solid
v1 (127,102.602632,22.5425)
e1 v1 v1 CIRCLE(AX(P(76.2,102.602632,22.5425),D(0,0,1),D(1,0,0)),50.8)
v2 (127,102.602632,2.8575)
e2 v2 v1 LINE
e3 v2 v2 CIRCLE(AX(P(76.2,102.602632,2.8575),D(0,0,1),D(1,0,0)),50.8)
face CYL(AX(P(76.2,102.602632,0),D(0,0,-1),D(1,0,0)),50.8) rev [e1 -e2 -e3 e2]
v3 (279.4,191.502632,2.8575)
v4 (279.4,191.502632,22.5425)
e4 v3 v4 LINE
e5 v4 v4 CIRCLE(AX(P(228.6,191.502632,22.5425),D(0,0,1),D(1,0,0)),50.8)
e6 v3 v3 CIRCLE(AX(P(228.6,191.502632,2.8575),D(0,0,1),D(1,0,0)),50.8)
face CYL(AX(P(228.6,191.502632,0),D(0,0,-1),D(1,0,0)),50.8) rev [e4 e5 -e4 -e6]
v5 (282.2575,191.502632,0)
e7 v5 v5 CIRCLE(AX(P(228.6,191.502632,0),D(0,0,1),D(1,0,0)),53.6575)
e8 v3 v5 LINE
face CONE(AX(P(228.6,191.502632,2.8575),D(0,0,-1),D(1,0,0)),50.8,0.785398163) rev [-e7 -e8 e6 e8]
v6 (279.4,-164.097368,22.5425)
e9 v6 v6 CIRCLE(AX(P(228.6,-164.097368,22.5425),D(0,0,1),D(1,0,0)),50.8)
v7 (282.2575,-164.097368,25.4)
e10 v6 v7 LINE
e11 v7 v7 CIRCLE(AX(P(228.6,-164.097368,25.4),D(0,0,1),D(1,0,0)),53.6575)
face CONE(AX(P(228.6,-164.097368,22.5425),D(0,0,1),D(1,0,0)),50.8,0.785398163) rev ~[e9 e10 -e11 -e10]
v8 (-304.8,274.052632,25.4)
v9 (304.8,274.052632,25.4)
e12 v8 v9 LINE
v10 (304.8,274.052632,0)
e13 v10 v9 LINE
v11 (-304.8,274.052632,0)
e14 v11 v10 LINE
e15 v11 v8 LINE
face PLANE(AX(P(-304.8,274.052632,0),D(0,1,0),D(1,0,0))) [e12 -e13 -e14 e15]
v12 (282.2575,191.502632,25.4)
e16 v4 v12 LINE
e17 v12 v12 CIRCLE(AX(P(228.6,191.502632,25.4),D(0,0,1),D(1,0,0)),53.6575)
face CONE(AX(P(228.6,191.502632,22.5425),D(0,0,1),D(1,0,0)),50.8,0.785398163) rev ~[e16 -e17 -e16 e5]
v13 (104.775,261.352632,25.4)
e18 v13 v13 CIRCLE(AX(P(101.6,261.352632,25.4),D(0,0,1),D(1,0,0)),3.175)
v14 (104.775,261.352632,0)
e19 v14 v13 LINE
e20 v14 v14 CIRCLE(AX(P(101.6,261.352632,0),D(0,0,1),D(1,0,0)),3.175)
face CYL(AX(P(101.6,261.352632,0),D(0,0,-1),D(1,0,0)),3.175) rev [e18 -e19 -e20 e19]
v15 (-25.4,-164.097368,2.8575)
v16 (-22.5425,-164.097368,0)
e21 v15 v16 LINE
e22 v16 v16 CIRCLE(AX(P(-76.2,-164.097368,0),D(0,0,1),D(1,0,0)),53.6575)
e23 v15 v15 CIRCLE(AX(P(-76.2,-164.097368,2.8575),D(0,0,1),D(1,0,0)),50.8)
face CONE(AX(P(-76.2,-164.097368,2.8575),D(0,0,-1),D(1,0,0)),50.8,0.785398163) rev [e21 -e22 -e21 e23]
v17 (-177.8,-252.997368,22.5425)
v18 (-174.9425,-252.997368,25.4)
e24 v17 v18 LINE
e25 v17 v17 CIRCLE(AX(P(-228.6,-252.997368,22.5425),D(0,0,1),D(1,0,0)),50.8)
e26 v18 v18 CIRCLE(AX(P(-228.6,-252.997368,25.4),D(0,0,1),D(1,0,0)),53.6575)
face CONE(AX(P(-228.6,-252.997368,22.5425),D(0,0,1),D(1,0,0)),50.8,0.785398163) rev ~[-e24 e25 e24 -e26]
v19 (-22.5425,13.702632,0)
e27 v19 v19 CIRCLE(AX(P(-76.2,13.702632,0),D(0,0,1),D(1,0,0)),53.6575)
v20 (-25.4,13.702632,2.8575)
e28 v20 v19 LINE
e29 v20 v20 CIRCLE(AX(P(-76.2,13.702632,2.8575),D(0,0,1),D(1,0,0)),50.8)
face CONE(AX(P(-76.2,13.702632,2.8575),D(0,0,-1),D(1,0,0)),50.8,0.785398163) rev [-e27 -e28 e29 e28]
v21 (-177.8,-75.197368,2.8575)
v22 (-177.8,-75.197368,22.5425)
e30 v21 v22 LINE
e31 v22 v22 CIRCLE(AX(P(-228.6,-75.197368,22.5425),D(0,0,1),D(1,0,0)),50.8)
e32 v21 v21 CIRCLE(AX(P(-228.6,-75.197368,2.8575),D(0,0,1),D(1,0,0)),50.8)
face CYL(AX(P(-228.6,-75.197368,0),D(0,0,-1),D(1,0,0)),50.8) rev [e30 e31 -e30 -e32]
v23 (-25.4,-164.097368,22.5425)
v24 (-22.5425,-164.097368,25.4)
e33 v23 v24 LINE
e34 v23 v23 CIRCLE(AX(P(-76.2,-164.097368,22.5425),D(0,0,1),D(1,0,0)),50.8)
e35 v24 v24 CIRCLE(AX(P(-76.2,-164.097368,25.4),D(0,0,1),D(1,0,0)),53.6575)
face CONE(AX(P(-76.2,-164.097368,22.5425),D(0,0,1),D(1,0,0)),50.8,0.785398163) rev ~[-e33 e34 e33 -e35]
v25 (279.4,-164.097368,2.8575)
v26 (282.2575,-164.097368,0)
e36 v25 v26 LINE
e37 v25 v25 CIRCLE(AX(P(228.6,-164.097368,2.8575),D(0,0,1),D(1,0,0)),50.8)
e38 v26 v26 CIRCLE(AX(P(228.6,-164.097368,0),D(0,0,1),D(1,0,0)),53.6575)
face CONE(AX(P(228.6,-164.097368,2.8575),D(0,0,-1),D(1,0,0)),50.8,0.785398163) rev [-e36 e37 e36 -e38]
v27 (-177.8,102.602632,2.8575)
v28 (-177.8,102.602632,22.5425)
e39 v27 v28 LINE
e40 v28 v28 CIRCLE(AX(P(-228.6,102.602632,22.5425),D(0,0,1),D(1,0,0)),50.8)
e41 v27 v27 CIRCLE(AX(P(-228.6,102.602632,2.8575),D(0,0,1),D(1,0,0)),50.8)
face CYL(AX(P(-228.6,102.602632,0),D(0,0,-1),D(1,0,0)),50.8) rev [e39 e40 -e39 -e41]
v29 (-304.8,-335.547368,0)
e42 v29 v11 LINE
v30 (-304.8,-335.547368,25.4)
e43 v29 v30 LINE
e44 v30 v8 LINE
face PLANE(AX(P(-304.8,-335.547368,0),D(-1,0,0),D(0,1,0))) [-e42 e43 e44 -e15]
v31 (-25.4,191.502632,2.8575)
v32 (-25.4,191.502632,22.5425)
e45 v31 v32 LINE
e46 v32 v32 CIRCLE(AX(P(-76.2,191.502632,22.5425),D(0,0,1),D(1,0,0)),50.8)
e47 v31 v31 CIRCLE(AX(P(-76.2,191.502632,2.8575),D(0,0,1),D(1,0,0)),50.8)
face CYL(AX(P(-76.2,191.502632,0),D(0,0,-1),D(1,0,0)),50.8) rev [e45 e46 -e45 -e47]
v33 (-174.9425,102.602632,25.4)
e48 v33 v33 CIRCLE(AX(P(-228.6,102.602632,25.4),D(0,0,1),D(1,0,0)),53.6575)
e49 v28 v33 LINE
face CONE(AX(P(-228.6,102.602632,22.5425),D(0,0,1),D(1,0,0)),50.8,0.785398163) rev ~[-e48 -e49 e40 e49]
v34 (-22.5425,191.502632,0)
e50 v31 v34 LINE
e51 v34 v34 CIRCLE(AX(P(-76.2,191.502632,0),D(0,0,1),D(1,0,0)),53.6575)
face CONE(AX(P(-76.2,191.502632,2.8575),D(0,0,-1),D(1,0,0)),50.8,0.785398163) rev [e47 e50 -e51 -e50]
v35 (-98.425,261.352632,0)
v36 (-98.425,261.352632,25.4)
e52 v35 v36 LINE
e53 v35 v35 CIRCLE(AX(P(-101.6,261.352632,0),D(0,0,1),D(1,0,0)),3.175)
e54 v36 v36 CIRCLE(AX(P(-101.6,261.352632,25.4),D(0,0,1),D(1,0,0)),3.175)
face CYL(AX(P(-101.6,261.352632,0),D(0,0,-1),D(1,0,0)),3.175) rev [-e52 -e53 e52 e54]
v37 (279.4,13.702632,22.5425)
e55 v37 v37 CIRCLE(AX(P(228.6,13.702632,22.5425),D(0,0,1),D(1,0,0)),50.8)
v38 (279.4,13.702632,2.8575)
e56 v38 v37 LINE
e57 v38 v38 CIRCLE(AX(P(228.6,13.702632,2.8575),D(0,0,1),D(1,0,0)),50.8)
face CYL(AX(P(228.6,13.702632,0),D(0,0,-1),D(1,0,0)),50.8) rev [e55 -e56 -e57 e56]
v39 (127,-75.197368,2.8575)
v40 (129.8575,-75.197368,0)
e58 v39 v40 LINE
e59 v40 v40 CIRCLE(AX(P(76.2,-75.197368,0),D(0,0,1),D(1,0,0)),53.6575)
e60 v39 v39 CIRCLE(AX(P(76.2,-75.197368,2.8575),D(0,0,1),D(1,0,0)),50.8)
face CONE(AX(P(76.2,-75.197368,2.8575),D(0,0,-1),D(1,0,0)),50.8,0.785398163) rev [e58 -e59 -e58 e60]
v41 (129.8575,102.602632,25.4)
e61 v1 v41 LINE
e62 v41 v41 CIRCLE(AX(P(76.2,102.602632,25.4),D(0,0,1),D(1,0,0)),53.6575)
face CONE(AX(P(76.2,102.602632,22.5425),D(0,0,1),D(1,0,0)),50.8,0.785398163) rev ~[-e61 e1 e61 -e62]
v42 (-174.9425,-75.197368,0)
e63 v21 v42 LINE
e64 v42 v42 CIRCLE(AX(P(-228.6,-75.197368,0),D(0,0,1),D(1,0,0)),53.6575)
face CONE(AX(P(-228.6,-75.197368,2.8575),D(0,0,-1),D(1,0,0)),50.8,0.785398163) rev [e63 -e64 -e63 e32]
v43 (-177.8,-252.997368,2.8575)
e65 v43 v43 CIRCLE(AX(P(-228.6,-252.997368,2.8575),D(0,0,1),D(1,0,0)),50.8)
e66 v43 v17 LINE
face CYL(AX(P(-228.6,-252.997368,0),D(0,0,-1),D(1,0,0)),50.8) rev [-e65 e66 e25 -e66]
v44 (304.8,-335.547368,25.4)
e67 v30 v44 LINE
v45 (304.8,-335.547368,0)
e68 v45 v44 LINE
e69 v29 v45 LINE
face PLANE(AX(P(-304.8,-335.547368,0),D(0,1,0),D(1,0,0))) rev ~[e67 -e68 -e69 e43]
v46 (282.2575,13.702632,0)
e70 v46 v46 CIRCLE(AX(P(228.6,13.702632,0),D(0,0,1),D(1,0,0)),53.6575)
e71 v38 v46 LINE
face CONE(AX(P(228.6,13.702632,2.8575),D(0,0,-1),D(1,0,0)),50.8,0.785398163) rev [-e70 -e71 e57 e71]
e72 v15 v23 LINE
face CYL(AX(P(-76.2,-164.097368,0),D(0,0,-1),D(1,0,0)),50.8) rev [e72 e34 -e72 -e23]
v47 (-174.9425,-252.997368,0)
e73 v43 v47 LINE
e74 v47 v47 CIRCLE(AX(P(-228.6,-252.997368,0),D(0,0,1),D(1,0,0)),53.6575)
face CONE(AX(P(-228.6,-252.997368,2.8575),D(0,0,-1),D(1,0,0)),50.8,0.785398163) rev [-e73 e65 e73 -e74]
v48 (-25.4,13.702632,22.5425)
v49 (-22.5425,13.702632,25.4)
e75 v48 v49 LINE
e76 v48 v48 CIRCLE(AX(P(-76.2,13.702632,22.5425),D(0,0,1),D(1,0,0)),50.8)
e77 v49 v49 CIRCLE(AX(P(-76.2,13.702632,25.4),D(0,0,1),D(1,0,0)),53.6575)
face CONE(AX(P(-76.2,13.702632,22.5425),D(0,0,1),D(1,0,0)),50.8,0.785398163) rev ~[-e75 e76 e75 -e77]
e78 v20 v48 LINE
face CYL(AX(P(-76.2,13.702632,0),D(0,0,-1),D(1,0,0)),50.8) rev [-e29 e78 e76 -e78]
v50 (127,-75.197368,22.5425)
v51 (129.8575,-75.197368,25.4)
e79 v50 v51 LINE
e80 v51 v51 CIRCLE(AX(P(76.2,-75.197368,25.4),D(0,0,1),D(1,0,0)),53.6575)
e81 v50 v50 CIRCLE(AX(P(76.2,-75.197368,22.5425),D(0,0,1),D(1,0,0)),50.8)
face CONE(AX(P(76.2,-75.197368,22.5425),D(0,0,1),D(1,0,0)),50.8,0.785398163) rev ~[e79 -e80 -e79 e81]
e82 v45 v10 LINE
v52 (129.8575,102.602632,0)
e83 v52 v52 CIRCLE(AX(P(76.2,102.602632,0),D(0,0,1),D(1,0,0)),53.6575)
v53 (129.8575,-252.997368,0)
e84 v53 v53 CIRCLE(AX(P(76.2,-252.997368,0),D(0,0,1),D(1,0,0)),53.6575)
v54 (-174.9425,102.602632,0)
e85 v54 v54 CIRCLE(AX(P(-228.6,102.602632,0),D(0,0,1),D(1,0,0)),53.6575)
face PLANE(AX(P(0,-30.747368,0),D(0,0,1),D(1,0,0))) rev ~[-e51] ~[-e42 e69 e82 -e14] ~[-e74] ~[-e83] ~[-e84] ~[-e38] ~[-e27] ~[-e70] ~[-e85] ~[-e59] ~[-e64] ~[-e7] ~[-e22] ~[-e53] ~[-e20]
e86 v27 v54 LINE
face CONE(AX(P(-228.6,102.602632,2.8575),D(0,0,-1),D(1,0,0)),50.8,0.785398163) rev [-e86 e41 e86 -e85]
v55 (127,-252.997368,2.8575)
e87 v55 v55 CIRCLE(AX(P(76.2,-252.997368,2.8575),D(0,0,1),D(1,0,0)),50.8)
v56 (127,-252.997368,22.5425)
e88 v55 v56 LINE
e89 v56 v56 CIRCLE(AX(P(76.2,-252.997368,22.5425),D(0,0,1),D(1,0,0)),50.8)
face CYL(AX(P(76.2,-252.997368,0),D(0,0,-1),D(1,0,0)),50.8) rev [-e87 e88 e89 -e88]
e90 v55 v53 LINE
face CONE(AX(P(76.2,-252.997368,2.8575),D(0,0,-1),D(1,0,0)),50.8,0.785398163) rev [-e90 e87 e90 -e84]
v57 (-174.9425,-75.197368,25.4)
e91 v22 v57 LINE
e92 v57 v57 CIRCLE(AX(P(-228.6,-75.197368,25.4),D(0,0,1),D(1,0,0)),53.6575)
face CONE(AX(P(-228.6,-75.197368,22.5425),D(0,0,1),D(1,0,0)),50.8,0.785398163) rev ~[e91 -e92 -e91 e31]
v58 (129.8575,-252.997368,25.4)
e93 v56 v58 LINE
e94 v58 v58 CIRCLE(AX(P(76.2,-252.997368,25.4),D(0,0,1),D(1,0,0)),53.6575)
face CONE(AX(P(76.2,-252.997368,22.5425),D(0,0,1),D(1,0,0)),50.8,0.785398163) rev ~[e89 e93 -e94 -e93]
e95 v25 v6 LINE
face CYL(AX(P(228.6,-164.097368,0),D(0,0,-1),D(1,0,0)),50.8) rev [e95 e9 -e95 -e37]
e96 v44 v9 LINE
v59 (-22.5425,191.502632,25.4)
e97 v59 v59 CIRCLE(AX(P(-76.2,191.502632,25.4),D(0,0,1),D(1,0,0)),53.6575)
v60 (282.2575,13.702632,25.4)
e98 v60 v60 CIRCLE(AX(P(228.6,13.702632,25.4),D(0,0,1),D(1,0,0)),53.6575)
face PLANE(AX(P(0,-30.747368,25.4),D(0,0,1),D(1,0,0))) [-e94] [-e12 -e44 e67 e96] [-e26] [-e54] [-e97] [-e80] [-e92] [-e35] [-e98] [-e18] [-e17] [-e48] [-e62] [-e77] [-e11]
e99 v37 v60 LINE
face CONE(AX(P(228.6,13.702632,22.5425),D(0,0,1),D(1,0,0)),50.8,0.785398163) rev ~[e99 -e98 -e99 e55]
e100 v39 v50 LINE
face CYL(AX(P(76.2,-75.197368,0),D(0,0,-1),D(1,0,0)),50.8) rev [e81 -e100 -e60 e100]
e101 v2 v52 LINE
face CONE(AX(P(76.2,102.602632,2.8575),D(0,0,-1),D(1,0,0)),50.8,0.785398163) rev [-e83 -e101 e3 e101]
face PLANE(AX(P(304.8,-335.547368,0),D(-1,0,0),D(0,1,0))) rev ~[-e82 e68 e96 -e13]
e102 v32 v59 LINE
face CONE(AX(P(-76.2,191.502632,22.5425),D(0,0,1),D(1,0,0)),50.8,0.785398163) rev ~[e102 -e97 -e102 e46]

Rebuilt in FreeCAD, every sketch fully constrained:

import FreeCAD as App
import Part
import Sketcher
from FreeCAD import Vector
Q = App.Units.Quantity


def edges_at(feature, points):
    """Names of the edges that pass closest to the given points."""
    edges = feature.Shape.Edges
    near = lambda p: min(range(len(edges)), key=lambda i: edges[i].distToShape(Part.Vertex(*p))[0])
    return sorted({f"Edge{near(p) + 1}" for p in points})


def add_polygon(sketch, points):
    """Adds a closed chain of lines whose ends are joined by coincident constraints."""
    first, n = sketch.GeometryCount, len(points)
    for a, b in zip(points, points[1:] + points[:1]):
        sketch.addGeometry(Part.LineSegment(App.Vector(*a, 0), App.Vector(*b, 0)), False)
    for i in range(n):
        sketch.addConstraint(Sketcher.Constraint("Coincident", first + i, 2, first + (i + 1) % n, 1))

doc = App.newDocument("Part")
body = doc.addObject("PartDesign::Body", "Body")

sketch1 = body.newObject("Sketcher::SketchObject", "Sketch")
sketch1.AttachmentSupport = (doc.getObject("XY_Plane"), [""])
sketch1.MapMode = "FlatFace"
add_polygon(sketch1, [(-304.8, 274.1), (-304.8, -335.5), (304.8, -335.5), (304.8, 274.1)])
sketch1.addGeometry(Part.Circle(Vector(-228.6, -253, 0), Vector(0, 0, 1), 50.8), False)
sketch1.addGeometry(Part.Circle(Vector(-76.2, -164.1, 0), Vector(0, 0, 1), 50.8), False)
sketch1.addGeometry(Part.Circle(Vector(-228.6, -75.2, 0), Vector(0, 0, 1), 50.8), False)
sketch1.addGeometry(Part.Circle(Vector(76.2, -253, 0), Vector(0, 0, 1), 50.8), False)
sketch1.addGeometry(Part.Circle(Vector(228.6, -164.1, 0), Vector(0, 0, 1), 50.8), False)
sketch1.addGeometry(Part.Circle(Vector(76.2, -75.2, 0), Vector(0, 0, 1), 50.8), False)
sketch1.addGeometry(Part.Circle(Vector(-228.6, 102.6, 0), Vector(0, 0, 1), 50.8), False)
sketch1.addGeometry(Part.Circle(Vector(-76.2, 13.7, 0), Vector(0, 0, 1), 50.8), False)
sketch1.addGeometry(Part.Circle(Vector(-76.2, 191.5, 0), Vector(0, 0, 1), 50.8), False)
sketch1.addGeometry(Part.Circle(Vector(-101.6, 261.4, 0), Vector(0, 0, 1), 3.2), False)
sketch1.addGeometry(Part.Circle(Vector(76.2, 102.6, 0), Vector(0, 0, 1), 50.8), False)
sketch1.addGeometry(Part.Circle(Vector(228.6, 13.7, 0), Vector(0, 0, 1), 50.8), False)
sketch1.addGeometry(Part.Circle(Vector(101.6, 261.4, 0), Vector(0, 0, 1), 3.2), False)
sketch1.addGeometry(Part.Circle(Vector(228.6, 191.5, 0), Vector(0, 0, 1), 50.8), False)
sketch1.addConstraint([
    Sketcher.Constraint("Vertical", 0),
    Sketcher.Constraint("Horizontal", 1),
    Sketcher.Constraint("Vertical", 2),
    Sketcher.Constraint("Horizontal", 3),
    Sketcher.Constraint("Equal", 4, 5),
    Sketcher.Constraint("Equal", 5, 6),
    Sketcher.Constraint("Equal", 6, 7),
    Sketcher.Constraint("Equal", 7, 8),
    Sketcher.Constraint("Equal", 8, 9),
    Sketcher.Constraint("Equal", 9, 10),
    Sketcher.Constraint("Equal", 10, 11),
    Sketcher.Constraint("Equal", 11, 12),
    Sketcher.Constraint("Equal", 12, 14),
    Sketcher.Constraint("Equal", 14, 15),
    Sketcher.Constraint("Equal", 13, 16),
    Sketcher.Constraint("Equal", 15, 17),
    Sketcher.Constraint("Symmetric", 13, 3, 16, 3, -2),
    Sketcher.Constraint("Horizontal", 4, 3, 7, 3),
    Sketcher.Constraint("Horizontal", 5, 3, 8, 3),
    Sketcher.Constraint("Horizontal", 6, 3, 9, 3),
    Sketcher.Constraint("Horizontal", 10, 3, 14, 3),
    Sketcher.Constraint("Horizontal", 11, 3, 15, 3),
    Sketcher.Constraint("Horizontal", 12, 3, 17, 3),
    Sketcher.Constraint("Vertical", 4, 3, 6, 3),
    Sketcher.Constraint("Vertical", 7, 3, 9, 3),
    Sketcher.Constraint("Vertical", 6, 3, 10, 3),
    Sketcher.Constraint("Vertical", 5, 3, 11, 3),
    Sketcher.Constraint("Vertical", 11, 3, 12, 3),
    Sketcher.Constraint("Vertical", 9, 3, 14, 3),
    Sketcher.Constraint("Vertical", 8, 3, 15, 3),
    Sketcher.Constraint("Vertical", 15, 3, 17, 3),
    Sketcher.Constraint("Equal", 3, 0),
    Sketcher.Constraint("Diameter", 4, Q("4 in")),
    Sketcher.Constraint("Diameter", 13, Q("0.25 in")),
    Sketcher.Constraint("DistanceX", 1, 1, 1, 2, Q("24 in")),
    Sketcher.Constraint("DistanceX", 4, 3, -1, 1, Q("9 in")),
    Sketcher.Constraint("DistanceX", 5, 3, -1, 1, Q("3 in")),
    Sketcher.Constraint("DistanceX", -1, 1, 7, 3, Q("3 in")),
    Sketcher.Constraint("DistanceX", -1, 1, 8, 3, Q("9 in")),
    Sketcher.Constraint("DistanceX", 13, 3, -1, 1, Q("4 in")),
    Sketcher.Constraint("DistanceX", 0, 2, -1, 1, Q("12 in")),
    Sketcher.Constraint("DistanceY", 4, 3, 6, 3, Q("7 in")),
    Sketcher.Constraint("DistanceY", 6, 3, 10, 3, Q("7 in")),
    Sketcher.Constraint("DistanceY", 5, 3, 11, 3, Q("7 in")),
    Sketcher.Constraint("DistanceY", 11, 3, 12, 3, Q("7 in")),
    Sketcher.Constraint("DistanceY", 4, 3, 5, 3, Q("3.5 in")),
    Sketcher.Constraint("DistanceY", 16, 3, 2, 2, Q("0.5 in")),
    Sketcher.Constraint("DistanceY", 12, 3, 13, 3, Q("2.75 in")),
    Sketcher.Constraint("DistanceY", 4, 3, -1, 1, 252.997368),
])
pad1 = body.newObject("PartDesign::Pad", "Pad")
pad1.Profile = sketch1
pad1.Length = Q("1 in")
doc.recompute()

chamfer = body.newObject("PartDesign::Chamfer", "Chamfer")
chamfer.Base = (pad1, edges_at(pad1, [
    (-25.4, -164.097, 12.7),
    (-127, -164.097, 0),
    (-127, -164.097, 25.4),
    (-25.4, 13.703, 12.7),
    (-127, 13.703, 0),
    (-127, 13.703, 25.4),
    (-177.8, 102.603, 12.7),
    (-279.4, 102.603, 0),
    (-279.4, 102.603, 25.4),
    (-25.4, 191.503, 12.7),
    (-127, 191.503, 0),
    (-127, 191.503, 25.4),
    (127, 102.603, 12.7),
    (25.4, 102.603, 0),
    (25.4, 102.603, 25.4),
    (279.4, 191.503, 12.7),
    (177.8, 191.503, 0),
    (177.8, 191.503, 25.4),
    (279.4, 13.703, 12.7),
    (177.8, 13.703, 0),
    (177.8, 13.703, 25.4),
    (127, -75.197, 12.7),
    (25.4, -75.197, 0),
    (25.4, -75.197, 25.4),
    (-177.8, -75.197, 12.7),
    (-279.4, -75.197, 0),
    (-279.4, -75.197, 25.4),
    (-177.8, -252.997, 12.7),
    (-279.4, -252.997, 0),
    (-279.4, -252.997, 25.4),
    (127, -252.997, 12.7),
    (25.4, -252.997, 0),
    (25.4, -252.997, 25.4),
    (279.4, -164.097, 12.7),
    (177.8, -164.097, 0),
    (177.8, -164.097, 25.4),
]))
chamfer.Size = Q("0.1125 in")

doc.recompute()
